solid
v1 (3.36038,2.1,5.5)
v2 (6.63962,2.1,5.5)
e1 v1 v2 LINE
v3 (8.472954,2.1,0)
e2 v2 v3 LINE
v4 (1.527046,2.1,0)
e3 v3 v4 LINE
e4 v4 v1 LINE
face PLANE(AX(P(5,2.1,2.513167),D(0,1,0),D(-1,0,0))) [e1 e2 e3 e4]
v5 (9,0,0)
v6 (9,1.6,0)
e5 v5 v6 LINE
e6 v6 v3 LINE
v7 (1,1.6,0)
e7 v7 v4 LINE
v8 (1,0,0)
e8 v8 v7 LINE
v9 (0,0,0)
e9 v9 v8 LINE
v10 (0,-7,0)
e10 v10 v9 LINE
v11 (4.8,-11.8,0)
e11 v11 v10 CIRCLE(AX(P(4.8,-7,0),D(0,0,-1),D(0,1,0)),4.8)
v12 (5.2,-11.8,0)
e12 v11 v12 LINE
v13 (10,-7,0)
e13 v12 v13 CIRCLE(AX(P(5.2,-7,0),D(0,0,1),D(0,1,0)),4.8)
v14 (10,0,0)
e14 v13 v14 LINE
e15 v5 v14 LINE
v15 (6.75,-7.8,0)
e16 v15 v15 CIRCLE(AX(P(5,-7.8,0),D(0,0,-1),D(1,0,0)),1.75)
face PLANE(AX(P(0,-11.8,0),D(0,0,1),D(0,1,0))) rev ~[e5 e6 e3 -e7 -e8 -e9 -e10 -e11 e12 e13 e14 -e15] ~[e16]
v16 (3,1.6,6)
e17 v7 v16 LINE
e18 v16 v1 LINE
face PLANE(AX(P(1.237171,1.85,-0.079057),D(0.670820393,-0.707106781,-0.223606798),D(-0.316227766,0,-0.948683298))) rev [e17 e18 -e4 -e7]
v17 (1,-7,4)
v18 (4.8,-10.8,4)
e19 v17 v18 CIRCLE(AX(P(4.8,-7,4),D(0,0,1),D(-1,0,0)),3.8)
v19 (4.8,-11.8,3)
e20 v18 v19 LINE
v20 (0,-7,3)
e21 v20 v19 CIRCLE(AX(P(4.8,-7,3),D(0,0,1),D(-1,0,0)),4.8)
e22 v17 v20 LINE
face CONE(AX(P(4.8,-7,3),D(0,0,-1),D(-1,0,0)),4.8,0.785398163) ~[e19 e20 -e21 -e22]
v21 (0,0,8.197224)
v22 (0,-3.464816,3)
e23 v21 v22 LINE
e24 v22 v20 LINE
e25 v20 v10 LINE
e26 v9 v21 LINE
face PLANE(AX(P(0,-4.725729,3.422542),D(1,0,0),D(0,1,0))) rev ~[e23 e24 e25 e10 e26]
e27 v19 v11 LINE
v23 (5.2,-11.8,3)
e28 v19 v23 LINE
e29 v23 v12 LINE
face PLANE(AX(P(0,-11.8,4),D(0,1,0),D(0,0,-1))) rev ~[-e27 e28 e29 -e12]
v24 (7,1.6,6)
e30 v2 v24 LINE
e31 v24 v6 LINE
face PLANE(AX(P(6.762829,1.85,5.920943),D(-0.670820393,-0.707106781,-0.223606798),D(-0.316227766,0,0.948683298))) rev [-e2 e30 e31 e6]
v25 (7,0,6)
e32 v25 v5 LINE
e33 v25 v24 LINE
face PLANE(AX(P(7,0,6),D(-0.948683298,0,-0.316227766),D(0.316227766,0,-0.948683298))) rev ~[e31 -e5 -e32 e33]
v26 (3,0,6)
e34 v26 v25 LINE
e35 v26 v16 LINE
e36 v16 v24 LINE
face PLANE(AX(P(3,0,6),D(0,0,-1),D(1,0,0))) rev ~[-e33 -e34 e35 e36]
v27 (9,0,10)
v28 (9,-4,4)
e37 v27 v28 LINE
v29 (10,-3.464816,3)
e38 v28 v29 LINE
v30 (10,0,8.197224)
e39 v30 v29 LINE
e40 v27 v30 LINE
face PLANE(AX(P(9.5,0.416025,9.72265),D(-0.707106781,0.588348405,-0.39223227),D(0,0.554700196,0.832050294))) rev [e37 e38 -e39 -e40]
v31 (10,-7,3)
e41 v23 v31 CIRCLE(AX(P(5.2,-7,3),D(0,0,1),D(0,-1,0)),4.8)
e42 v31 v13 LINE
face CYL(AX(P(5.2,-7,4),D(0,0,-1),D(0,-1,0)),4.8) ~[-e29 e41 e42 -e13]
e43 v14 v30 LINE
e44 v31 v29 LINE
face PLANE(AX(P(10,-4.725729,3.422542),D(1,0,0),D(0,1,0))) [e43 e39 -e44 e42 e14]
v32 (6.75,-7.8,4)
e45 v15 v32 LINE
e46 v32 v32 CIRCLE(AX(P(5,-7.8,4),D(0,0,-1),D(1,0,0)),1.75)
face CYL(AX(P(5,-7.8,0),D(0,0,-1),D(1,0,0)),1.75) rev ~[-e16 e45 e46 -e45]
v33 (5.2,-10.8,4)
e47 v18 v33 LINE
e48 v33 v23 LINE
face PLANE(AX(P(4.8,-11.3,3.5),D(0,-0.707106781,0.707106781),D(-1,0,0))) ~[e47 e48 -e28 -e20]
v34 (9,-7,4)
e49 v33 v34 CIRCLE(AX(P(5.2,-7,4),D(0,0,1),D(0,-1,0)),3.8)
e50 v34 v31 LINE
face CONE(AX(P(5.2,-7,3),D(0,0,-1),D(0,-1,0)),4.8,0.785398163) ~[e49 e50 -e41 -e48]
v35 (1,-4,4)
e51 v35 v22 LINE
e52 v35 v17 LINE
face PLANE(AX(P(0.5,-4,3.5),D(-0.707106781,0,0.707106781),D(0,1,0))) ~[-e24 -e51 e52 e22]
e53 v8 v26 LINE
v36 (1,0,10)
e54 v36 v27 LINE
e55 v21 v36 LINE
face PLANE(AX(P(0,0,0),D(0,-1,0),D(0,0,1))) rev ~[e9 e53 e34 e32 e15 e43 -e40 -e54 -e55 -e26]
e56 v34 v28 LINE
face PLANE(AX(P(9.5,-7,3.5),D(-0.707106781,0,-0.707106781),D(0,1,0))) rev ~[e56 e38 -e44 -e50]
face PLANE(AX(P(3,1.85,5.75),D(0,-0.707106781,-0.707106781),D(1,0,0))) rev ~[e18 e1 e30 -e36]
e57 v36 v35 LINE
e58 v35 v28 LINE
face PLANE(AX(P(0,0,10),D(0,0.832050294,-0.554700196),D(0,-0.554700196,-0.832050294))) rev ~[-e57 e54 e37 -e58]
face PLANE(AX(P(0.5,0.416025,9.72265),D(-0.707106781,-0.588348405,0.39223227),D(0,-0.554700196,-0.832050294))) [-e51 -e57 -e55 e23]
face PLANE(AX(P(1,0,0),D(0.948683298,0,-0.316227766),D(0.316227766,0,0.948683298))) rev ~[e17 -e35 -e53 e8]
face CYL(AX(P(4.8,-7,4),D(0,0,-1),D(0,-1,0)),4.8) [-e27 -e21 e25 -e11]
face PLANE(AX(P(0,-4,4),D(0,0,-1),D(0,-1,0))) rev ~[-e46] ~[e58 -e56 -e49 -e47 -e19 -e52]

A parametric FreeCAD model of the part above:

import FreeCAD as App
import Part
import Sketcher
from FreeCAD import Vector


def edges_at(feature, points):
    """Names of the edges that pass closest to the given points."""
    edges = feature.Shape.Edges
    near = lambda p: min(range(len(edges)), key=lambda i: edges[i].distToShape(Part.Vertex(*p))[0])
    return sorted({f"Edge{near(p) + 1}" for p in points})

doc = App.newDocument("Part")
params = doc.addObject("Spreadsheet::Sheet", "Params")
for row, (alias, value) in enumerate([
    ("sketch1_height", "4 mm"),
    ("sketch1_height2", "10 mm"),
    ("sketch1_width", "11.8 mm"),
    ("sketch1_width2", "7.8 mm"),
    ("pad1_length", "10 mm"),
    ("sketch2_diameter", "3.5 mm"),
    ("sketch3_width", "8 mm"),
    ("sketch3_width2", "4 mm"),
    ("pad2_length", "2.1 mm"),
    ("fillet_radius", "4.8 mm"),
    ("chamfer_size", "1 mm"),
    ("chamfer2_size", "0.5 mm"),
], start=1):
    params.set(f"A{row}", alias)
    params.set(f"B{row}", "=" + value)
    params.setAlias(f"B{row}", alias)

body = doc.addObject("PartDesign::Body", "Body")

# Sketch on YZ plane
sketch1 = doc.addObject("Sketcher::SketchObject", "Sketch")
body.addObject(sketch1)
sketch1.AttachmentSupport = (doc.YZ_Plane, [""])
sketch1.MapMode = "FlatFace"
sketch1.addGeometry(Part.LineSegment(Vector(-11.8, 4, 0), Vector(-11.8, 0, 0)), False)
sketch1.addGeometry(Part.LineSegment(Vector(-11.8, 0, 0), Vector(0, 0, 0)), False)
sketch1.addGeometry(Part.LineSegment(Vector(0, 0, 0), Vector(0, 10, 0)), False)
sketch1.addGeometry(Part.LineSegment(Vector(0, 10, 0), Vector(-4, 4, 0)), False)
sketch1.addGeometry(Part.LineSegment(Vector(-4, 4, 0), Vector(-11.8, 4, 0)), False)
sketch1.addConstraint(Sketcher.Constraint("Coincident", 0, 2, 1, 1))
sketch1.addConstraint(Sketcher.Constraint("Coincident", 1, 2, 2, 1))
sketch1.addConstraint(Sketcher.Constraint("Coincident", 2, 2, 3, 1))
sketch1.addConstraint(Sketcher.Constraint("Coincident", 3, 2, 4, 1))
sketch1.addConstraint(Sketcher.Constraint("Coincident", 4, 2, 0, 1))
sketch1.addConstraint(Sketcher.Constraint("Vertical", 0))
sketch1.addConstraint(Sketcher.Constraint("Horizontal", 1))
sketch1.addConstraint(Sketcher.Constraint("Vertical", 2))
sketch1.addConstraint(Sketcher.Constraint("Horizontal", 4))
sketch1.addConstraint(Sketcher.Constraint("Coincident", 1, 2, -1, 1))
sketch1.addConstraint(Sketcher.Constraint("DistanceY", 0, 2, 0, 1, 4.0))
sketch1.addConstraint(Sketcher.Constraint("DistanceY", 2, 1, 2, 2, 10.0))
sketch1.addConstraint(Sketcher.Constraint("DistanceX", 1, 1, 1, 2, 11.8))
sketch1.addConstraint(Sketcher.Constraint("DistanceX", 4, 2, 4, 1, 7.8))
sketch1.setExpression("Constraints[10]", "Params.sketch1_height")
sketch1.setExpression("Constraints[11]", "Params.sketch1_height2")
sketch1.setExpression("Constraints[12]", "Params.sketch1_width")
sketch1.setExpression("Constraints[13]", "Params.sketch1_width2")
pad1 = doc.addObject("PartDesign::Pad", "Pad")
body.addObject(pad1)
pad1.Profile = sketch1
pad1.setExpression("Length", "Params.pad1_length")

# Sketch on XY plane
sketch2 = doc.addObject("Sketcher::SketchObject", "Sketch001")
body.addObject(sketch2)
sketch2.AttachmentSupport = (doc.XY_Plane, [""])
sketch2.MapMode = "FlatFace"
sketch2.addGeometry(Part.Circle(Vector(5, -7.8, 0), Vector(0, 0, 1), 1.75), False)
sketch2.addConstraint(Sketcher.Constraint("Diameter", 0, 3.5))
sketch2.addConstraint(Sketcher.Constraint("DistanceX", -1, 1, 0, 3, 5.0))
sketch2.addConstraint(Sketcher.Constraint("DistanceY", 0, 3, -1, 1, 7.8))
sketch2.setExpression("Constraints[0]", "Params.sketch2_diameter")
pocket1 = doc.addObject("PartDesign::Pocket", "Pocket")
body.addObject(pocket1)
pocket1.Profile = sketch2
pocket1.Type = "ThroughAll"
pocket1.Reversed = True

# Sketch on XZ plane
sketch3 = doc.addObject("Sketcher::SketchObject", "Sketch002")
body.addObject(sketch3)
sketch3.AttachmentSupport = (doc.XZ_Plane, [""])
sketch3.MapMode = "FlatFace"
sketch3.addGeometry(Part.LineSegment(Vector(7, 6, 0), Vector(9, 0, 0)), False)
sketch3.addGeometry(Part.LineSegment(Vector(9, 0, 0), Vector(1, 0, 0)), False)
sketch3.addGeometry(Part.LineSegment(Vector(1, 0, 0), Vector(3, 6, 0)), False)
sketch3.addGeometry(Part.LineSegment(Vector(3, 6, 0), Vector(7, 6, 0)), False)
sketch3.addConstraint(Sketcher.Constraint("Coincident", 0, 2, 1, 1))
sketch3.addConstraint(Sketcher.Constraint("Coincident", 1, 2, 2, 1))
sketch3.addConstraint(Sketcher.Constraint("Coincident", 2, 2, 3, 1))
sketch3.addConstraint(Sketcher.Constraint("Coincident", 3, 2, 0, 1))
sketch3.addConstraint(Sketcher.Constraint("Horizontal", 1))
sketch3.addConstraint(Sketcher.Constraint("Horizontal", 3))
sketch3.addConstraint(Sketcher.Constraint("PointOnObject", 0, 2, -1))
sketch3.addConstraint(Sketcher.Constraint("Equal", 0, 2))
sketch3.addConstraint(Sketcher.Constraint("DistanceX", 1, 2, 1, 1, 8.0))
sketch3.addConstraint(Sketcher.Constraint("DistanceX", 3, 1, 3, 2, 4.0))
sketch3.addConstraint(Sketcher.Constraint("DistanceX", -1, 1, 0, 2, 9.0))
sketch3.addConstraint(Sketcher.Constraint("DistanceY", -1, 1, 2, 2, 6.0))
sketch3.setExpression("Constraints[8]", "Params.sketch3_width")
sketch3.setExpression("Constraints[9]", "Params.sketch3_width2")
pad2 = doc.addObject("PartDesign::Pad", "Pad001")
body.addObject(pad2)
pad2.Profile = sketch3
pad2.setExpression("Length", "Params.pad2_length")
pad2.Reversed = True
doc.recompute()

fillet = doc.addObject("PartDesign::Fillet", "Fillet")
body.addObject(fillet)
fillet.Base = (pad2, edges_at(pad2, [(0, -11.8, 2), (10, -11.8, 2)]))
fillet.setExpression("Radius", "Params.fillet_radius")
doc.recompute()

chamfer = doc.addObject("PartDesign::Chamfer", "Chamfer")
body.addObject(chamfer)
chamfer.Base = (fillet, edges_at(fillet, [(0, -5.5, 4), (0, -2, 7), (10, -2, 7)]))
chamfer.setExpression("Size", "Params.chamfer_size")
doc.recompute()

chamfer2 = doc.addObject("PartDesign::Chamfer", "Chamfer001")
body.addObject(chamfer2)
chamfer2.Base = (chamfer, edges_at(chamfer, [(2, 2.1, 3), (5, 2.1, 6), (8, 2.1, 3)]))
chamfer2.setExpression("Size", "Params.chamfer2_size")

doc.recompute()
